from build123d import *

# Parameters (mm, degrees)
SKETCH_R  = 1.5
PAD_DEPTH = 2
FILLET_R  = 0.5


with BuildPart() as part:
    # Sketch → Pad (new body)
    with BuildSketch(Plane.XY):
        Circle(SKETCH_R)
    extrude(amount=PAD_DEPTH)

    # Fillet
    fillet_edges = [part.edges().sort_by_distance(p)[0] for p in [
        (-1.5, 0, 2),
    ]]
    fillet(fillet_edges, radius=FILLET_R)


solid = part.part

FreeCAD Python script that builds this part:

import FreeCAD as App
import Part
import Sketcher
from FreeCAD import Vector
Q = App.Units.Quantity


def edges_at(feature, points):
    """Names of the edges that pass closest to the given points."""
    edges = feature.Shape.Edges
    near = lambda p: min(range(len(edges)), key=lambda i: edges[i].distToShape(Part.Vertex(*p))[0])
    return sorted({f"Edge{near(p) + 1}" for p in points})

doc = App.newDocument("Part")
body = doc.addObject("PartDesign::Body", "Body")

# Sketch on XY plane
sketch1 = body.newObject("Sketcher::SketchObject", "Sketch")
sketch1.AttachmentSupport = (doc.getObject("XY_Plane"), [""])
sketch1.MapMode = "FlatFace"
sketch1.addGeometry(Part.Circle(Vector(0, 0, 0), Vector(0, 0, 1), 1.5), False)
sketch1.addConstraint([
    Sketcher.Constraint("Coincident", 0, 3, -1, 1),
    Sketcher.Constraint("Diameter", 0, Q("3 mm")),
])
pad1 = body.newObject("PartDesign::Pad", "Pad")
pad1.Profile = sketch1
pad1.Length = 2
doc.recompute()

fillet = body.newObject("PartDesign::Fillet", "Fillet")
fillet.Base = (pad1, edges_at(pad1, [(-1.5, 0, 2)]))
fillet.Radius = 0.5

doc.recompute()
